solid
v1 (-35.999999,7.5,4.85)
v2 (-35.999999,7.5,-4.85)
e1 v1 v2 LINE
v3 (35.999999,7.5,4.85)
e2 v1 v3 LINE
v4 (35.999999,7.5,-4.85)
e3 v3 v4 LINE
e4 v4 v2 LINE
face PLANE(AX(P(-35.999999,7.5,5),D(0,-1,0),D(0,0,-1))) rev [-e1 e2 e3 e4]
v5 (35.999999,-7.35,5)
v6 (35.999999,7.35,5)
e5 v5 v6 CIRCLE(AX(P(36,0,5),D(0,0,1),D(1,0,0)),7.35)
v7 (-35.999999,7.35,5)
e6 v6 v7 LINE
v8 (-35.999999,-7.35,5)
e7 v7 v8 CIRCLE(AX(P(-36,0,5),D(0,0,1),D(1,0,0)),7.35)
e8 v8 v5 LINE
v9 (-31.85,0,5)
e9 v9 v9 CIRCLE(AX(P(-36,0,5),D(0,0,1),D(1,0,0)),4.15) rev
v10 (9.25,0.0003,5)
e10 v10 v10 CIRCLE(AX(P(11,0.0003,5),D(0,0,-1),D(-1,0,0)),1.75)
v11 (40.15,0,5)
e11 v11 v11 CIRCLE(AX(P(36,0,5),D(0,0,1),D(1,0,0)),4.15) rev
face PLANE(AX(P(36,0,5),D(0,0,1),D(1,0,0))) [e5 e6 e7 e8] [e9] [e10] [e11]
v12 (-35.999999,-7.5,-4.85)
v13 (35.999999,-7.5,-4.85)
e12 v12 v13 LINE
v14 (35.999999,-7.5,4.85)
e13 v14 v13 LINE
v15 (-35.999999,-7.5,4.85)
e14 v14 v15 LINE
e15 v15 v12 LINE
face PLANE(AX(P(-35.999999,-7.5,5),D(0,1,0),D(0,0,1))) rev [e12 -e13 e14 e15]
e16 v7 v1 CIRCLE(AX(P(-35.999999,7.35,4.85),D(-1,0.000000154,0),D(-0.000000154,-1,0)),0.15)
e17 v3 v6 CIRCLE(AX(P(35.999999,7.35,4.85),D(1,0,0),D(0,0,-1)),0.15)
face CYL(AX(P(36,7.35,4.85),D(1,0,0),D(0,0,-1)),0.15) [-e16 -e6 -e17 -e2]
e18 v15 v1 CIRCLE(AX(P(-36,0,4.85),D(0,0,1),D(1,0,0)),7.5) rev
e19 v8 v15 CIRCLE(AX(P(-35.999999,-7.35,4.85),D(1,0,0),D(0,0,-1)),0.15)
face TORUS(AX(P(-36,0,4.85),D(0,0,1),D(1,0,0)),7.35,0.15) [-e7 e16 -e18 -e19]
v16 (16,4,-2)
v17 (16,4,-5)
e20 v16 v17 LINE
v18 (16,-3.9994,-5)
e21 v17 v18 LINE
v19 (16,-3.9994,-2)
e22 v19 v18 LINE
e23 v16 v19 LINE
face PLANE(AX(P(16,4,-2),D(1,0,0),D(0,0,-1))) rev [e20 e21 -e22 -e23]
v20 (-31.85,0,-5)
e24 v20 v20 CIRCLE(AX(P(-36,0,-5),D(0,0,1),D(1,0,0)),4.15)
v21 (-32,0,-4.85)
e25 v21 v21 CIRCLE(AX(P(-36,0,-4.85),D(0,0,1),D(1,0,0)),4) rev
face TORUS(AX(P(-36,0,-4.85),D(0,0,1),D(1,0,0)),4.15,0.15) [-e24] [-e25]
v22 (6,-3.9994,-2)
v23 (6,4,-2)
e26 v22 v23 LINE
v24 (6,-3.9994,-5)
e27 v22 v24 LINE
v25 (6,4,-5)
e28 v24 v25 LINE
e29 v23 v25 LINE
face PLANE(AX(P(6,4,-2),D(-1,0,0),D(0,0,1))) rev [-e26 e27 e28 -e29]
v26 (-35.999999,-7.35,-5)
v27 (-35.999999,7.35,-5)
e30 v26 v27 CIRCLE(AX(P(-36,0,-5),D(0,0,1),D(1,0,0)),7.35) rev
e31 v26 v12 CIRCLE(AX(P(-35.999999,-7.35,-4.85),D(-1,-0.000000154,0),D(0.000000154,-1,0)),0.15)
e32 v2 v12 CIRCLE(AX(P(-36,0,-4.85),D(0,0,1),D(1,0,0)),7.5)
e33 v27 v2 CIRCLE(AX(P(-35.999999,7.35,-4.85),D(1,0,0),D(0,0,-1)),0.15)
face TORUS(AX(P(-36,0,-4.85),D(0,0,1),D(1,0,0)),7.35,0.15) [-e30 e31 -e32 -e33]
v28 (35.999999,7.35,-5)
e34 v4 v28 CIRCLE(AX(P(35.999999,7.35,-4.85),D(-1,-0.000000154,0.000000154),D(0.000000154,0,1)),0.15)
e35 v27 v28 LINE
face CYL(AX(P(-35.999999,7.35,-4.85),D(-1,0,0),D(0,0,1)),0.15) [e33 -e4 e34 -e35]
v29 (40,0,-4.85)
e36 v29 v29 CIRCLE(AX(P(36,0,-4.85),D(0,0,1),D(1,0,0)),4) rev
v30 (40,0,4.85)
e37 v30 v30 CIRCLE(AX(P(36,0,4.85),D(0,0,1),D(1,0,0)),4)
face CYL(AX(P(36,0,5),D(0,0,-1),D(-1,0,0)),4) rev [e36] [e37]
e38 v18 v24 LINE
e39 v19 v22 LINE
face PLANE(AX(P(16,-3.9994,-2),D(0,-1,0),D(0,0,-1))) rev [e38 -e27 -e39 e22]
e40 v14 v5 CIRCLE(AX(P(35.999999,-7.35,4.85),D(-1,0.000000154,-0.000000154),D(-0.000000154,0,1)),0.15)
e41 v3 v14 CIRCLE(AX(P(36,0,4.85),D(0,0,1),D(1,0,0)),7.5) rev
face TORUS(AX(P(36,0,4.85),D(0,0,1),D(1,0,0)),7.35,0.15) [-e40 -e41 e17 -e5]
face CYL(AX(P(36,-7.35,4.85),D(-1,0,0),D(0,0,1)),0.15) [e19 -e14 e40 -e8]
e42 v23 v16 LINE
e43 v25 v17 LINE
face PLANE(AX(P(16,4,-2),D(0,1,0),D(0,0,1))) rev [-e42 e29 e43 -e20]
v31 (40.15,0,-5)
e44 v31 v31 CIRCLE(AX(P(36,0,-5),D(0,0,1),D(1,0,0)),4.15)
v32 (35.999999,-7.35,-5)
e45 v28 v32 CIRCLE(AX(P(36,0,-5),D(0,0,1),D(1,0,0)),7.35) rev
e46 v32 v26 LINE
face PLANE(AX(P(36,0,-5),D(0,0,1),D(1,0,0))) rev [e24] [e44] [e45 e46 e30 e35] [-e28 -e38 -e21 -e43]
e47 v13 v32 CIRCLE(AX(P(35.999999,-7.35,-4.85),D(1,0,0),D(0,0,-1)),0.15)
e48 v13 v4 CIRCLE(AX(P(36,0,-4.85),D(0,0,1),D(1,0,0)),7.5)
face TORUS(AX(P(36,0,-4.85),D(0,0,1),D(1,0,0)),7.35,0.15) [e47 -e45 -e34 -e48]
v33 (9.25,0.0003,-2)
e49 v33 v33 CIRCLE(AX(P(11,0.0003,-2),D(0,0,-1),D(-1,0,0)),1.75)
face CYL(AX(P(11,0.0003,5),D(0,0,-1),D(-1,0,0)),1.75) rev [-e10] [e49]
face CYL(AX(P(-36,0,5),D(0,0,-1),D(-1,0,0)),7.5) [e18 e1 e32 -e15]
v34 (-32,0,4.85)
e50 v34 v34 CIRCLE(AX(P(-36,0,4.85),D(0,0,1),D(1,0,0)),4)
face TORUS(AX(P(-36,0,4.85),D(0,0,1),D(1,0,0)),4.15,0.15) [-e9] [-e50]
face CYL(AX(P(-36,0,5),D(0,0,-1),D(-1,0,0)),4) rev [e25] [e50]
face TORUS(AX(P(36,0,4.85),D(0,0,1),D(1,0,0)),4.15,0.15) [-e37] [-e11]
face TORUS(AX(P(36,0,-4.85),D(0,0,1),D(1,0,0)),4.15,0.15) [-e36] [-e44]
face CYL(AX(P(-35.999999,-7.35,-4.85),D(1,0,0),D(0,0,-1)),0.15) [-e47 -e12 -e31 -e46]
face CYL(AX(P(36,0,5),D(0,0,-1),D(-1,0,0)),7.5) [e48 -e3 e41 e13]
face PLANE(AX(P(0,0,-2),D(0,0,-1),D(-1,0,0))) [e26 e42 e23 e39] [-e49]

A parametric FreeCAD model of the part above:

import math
import FreeCAD as App
import Part
import Sketcher
Q = App.Units.Quantity


def edges_at(feature, points):
    """Names of the edges that pass closest to the given points."""
    edges = feature.Shape.Edges
    near = lambda p: min(range(len(edges)), key=lambda i: edges[i].distToShape(Part.Vertex(*p))[0])
    return sorted({f"Edge{near(p) + 1}" for p in points})

doc = App.newDocument("Part")
body = doc.addObject("PartDesign::Body", "Body")

# Sketch on XY plane
sketch1 = body.newObject("Sketcher::SketchObject", "Sketch")
sketch1.AttachmentSupport = (doc.getObject("XY_Plane"), [""])
sketch1.MapMode = "FlatFace"
sketch1.addGeometry(Part.LineSegment(App.Vector(36, 7.5, 0), App.Vector(-36, 7.5, 0)), False)
sketch1.addGeometry(Part.ArcOfCircle(Part.Circle(App.Vector(-36, 0, 0), App.Vector(0, 0, 1), 7.5), math.radians(90), math.radians(270)), False)
sketch1.addGeometry(Part.LineSegment(App.Vector(-36, -7.5, 0), App.Vector(36, -7.5, 0)), False)
sketch1.addGeometry(Part.ArcOfCircle(Part.Circle(App.Vector(36, 0, 0), App.Vector(0, 0, 1), 7.5), math.radians(-90), math.radians(90)), False)
sketch1.addGeometry(Part.Circle(App.Vector(36, 0, 0), App.Vector(0, 0, 1), 4), False)
sketch1.addGeometry(Part.Circle(App.Vector(-36, 0, 0), App.Vector(0, 0, 1), 4), False)
sketch1.addConstraint(Sketcher.Constraint("Tangent", 0, 2, 1, 1))
sketch1.addConstraint(Sketcher.Constraint("Tangent", 1, 2, 2, 1))
sketch1.addConstraint(Sketcher.Constraint("Tangent", 2, 2, 3, 1))
sketch1.addConstraint(Sketcher.Constraint("Tangent", 3, 2, 0, 1))
sketch1.addConstraint(Sketcher.Constraint("Horizontal", 0))
sketch1.addConstraint(Sketcher.Constraint("Horizontal", 2))
sketch1.addConstraint(Sketcher.Constraint("Coincident", 4, 3, 3, 3))
sketch1.addConstraint(Sketcher.Constraint("Coincident", 5, 3, 1, 3))
sketch1.addConstraint(Sketcher.Constraint("Equal", 4, 5))
sketch1.addConstraint(Sketcher.Constraint("Symmetric", 1, 3, 3, 3, -1, 1))
sketch1.addConstraint(Sketcher.Constraint("Diameter", 4, Q("8 mm")))
sketch1.addConstraint(Sketcher.Constraint("Radius", 1, Q("7.5 mm")))
sketch1.addConstraint(Sketcher.Constraint("DistanceX", 1, 3, -1, 1, Q("36 mm")))
pad1 = body.newObject("PartDesign::Pad", "Pad")
pad1.Profile = sketch1
pad1.Length = 10
pad1.Midplane = True
doc.recompute()

fillet = body.newObject("PartDesign::Fillet", "Fillet")
fillet.Base = (pad1, edges_at(pad1, [
    (-40, 0, -5),
    (-40, 0, 5),
    (-43.5, 0, 5),
    (32, 0, -5),
    (32, 0, 5),
    (0, -7.5, 5),
    (43.5, 0, 5),
    (0, -7.5, -5),
    (-43.5, 0, -5),
    (0, 7.5, -5),
    (43.5, 0, -5),
    (0, 7.5, 5),
]))
fillet.Radius = 0.15

# Sketch on XY plane
sketch2 = body.newObject("Sketcher::SketchObject", "Sketch001")
sketch2.AttachmentSupport = (doc.getObject("XY_Plane"), [""])
sketch2.MapMode = "FlatFace"
sketch2.AttachmentOffset = App.Placement(App.Vector(0, 0, -5), App.Rotation())
sketch2.addGeometry(Part.LineSegment(App.Vector(16, 4, 0), App.Vector(16, -4, 0)), False)
sketch2.addGeometry(Part.LineSegment(App.Vector(16, -4, 0), App.Vector(6, -4, 0)), False)
sketch2.addGeometry(Part.LineSegment(App.Vector(6, -4, 0), App.Vector(6, 4, 0)), False)
sketch2.addGeometry(Part.LineSegment(App.Vector(6, 4, 0), App.Vector(16, 4, 0)), False)
sketch2.addConstraint(Sketcher.Constraint("Coincident", 0, 2, 1, 1))
sketch2.addConstraint(Sketcher.Constraint("Coincident", 1, 2, 2, 1))
sketch2.addConstraint(Sketcher.Constraint("Coincident", 2, 2, 3, 1))
sketch2.addConstraint(Sketcher.Constraint("Coincident", 3, 2, 0, 1))
sketch2.addConstraint(Sketcher.Constraint("Vertical", 0))
sketch2.addConstraint(Sketcher.Constraint("Horizontal", 1))
sketch2.addConstraint(Sketcher.Constraint("Vertical", 2))
sketch2.addConstraint(Sketcher.Constraint("Horizontal", 3))
sketch2.addConstraint(Sketcher.Constraint("DistanceX", 1, 2, 1, 1, Q("10 mm")))
sketch2.addConstraint(Sketcher.Constraint("DistanceX", -1, 1, 0, 2, Q("16 mm")))
sketch2.addConstraint(Sketcher.Constraint("DistanceY", -1, 1, 2, 2, Q("4 mm")))
sketch2.addConstraint(Sketcher.Constraint("DistanceY", 0, 2, 0, 1, Q("7.9994 mm")))
pocket1 = body.newObject("PartDesign::Pocket", "Pocket")
pocket1.Profile = sketch2
pocket1.Length = 3
pocket1.Reversed = True

# Sketch on XY plane
sketch3 = body.newObject("Sketcher::SketchObject", "Sketch002")
sketch3.AttachmentSupport = (doc.getObject("XY_Plane"), [""])
sketch3.MapMode = "FlatFace"
sketch3.AttachmentOffset = App.Placement(App.Vector(0, 0, -2), App.Rotation())
sketch3.addGeometry(Part.Circle(App.Vector(11, 0, 0), App.Vector(0, 0, 1), 1.8), False)
sketch3.addConstraint(Sketcher.Constraint("Diameter", 0, Q("3.5 mm")))
sketch3.addConstraint(Sketcher.Constraint("DistanceX", -1, 1, 0, 3, Q("11 mm")))
sketch3.addConstraint(Sketcher.Constraint("DistanceY", -1, 1, 0, 3, Q("0.0003 mm")))
pocket2 = body.newObject("PartDesign::Pocket", "Pocket001")
pocket2.Profile = sketch3
pocket2.Type = "ThroughAll"
pocket2.Reversed = True

doc.recompute()
